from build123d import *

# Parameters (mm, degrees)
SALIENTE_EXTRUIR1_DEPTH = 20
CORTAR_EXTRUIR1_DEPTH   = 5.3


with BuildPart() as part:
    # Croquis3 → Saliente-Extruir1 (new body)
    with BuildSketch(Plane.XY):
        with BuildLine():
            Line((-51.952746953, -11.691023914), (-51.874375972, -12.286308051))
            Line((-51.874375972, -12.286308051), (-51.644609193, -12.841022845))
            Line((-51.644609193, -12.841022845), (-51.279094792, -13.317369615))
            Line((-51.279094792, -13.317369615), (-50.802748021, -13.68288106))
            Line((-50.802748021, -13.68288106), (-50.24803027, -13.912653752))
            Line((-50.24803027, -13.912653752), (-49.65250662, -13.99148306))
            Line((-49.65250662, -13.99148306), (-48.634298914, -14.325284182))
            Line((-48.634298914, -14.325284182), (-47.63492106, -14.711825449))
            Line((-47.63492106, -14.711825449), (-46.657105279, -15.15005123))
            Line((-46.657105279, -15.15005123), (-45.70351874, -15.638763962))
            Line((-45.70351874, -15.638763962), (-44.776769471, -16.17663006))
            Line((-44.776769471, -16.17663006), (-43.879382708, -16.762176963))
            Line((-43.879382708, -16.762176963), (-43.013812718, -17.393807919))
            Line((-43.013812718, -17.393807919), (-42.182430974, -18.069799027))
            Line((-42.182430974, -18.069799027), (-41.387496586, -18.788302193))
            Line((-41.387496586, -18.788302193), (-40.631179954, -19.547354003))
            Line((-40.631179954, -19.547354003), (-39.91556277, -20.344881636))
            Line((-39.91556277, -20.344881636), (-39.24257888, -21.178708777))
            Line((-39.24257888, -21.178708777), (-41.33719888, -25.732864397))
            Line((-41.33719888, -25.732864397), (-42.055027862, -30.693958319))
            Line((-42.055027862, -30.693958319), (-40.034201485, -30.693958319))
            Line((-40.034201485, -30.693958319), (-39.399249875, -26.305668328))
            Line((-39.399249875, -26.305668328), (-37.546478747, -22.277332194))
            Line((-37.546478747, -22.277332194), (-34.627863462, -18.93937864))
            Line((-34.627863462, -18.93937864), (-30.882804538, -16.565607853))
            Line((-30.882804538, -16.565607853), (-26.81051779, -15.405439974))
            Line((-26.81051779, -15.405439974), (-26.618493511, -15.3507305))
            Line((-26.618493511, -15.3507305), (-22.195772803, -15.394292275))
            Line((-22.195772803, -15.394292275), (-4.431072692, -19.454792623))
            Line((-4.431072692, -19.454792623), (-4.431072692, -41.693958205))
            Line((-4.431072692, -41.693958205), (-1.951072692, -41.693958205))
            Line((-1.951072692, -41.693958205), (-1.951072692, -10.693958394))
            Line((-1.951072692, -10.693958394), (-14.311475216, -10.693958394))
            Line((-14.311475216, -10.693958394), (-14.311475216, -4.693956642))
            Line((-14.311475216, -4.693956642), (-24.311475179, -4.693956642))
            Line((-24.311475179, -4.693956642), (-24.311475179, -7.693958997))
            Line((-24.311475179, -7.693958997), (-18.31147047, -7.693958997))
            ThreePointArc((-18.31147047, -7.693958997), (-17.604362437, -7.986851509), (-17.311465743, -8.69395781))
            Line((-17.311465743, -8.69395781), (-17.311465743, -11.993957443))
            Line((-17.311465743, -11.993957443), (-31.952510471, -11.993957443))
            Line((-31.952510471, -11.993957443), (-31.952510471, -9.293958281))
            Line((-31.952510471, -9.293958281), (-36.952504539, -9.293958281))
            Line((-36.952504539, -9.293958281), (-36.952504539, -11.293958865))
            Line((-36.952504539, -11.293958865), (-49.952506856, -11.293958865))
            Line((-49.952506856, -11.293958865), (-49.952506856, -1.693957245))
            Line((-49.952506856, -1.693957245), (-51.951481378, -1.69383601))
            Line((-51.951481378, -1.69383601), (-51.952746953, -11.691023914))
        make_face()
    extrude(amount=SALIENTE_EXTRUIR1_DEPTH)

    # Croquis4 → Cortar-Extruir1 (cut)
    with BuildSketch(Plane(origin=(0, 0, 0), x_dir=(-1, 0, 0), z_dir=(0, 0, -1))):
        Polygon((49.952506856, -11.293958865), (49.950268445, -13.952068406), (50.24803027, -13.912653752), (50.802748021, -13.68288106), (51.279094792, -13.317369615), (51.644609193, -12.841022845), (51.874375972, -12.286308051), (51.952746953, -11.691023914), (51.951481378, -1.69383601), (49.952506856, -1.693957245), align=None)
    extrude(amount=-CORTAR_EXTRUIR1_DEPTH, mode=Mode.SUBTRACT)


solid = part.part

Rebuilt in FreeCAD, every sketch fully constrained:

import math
import FreeCAD as App
import Part
import Sketcher

V = App.Vector


def add_polygon(sketch, points):
    """Adds a closed chain of lines whose ends are joined by coincident constraints."""
    first, n = sketch.GeometryCount, len(points)
    for a, b in zip(points, points[1:] + points[:1]):
        sketch.addGeometry(Part.LineSegment(App.Vector(*a, 0), App.Vector(*b, 0)), False)
    for i in range(n):
        sketch.addConstraint(Sketcher.Constraint("Coincident", first + i, 2, first + (i + 1) % n, 1))

doc = App.newDocument("Part")
body = doc.addObject("PartDesign::Body", "Body")

# Sketch on XY plane
sketch1 = body.newObject("Sketcher::SketchObject", "Sketch")
sketch1.AttachmentSupport = (doc.getObject("XY_Plane"), [""])
sketch1.MapMode = "FlatFace"
sketch1.addGeometry([
    Part.LineSegment(V(-51.952747, -11.691024, 0), V(-51.874376, -12.286308, 0)),  # 0
    Part.LineSegment(V(-51.874376, -12.286308, 0), V(-51.644609, -12.841023, 0)),  # 1
    Part.LineSegment(V(-51.644609, -12.841023, 0), V(-51.279095, -13.31737, 0)),  # 2
    Part.LineSegment(V(-51.279095, -13.31737, 0), V(-50.802748, -13.682881, 0)),  # 3
    Part.LineSegment(V(-50.802748, -13.682881, 0), V(-50.24803, -13.912654, 0)),  # 4
    Part.LineSegment(V(-50.24803, -13.912654, 0), V(-49.652507, -13.991483, 0)),  # 5
    Part.LineSegment(V(-49.652507, -13.991483, 0), V(-48.634299, -14.325284, 0)),  # 6
    Part.LineSegment(V(-48.634299, -14.325284, 0), V(-47.634921, -14.711825, 0)),  # 7
    Part.LineSegment(V(-47.634921, -14.711825, 0), V(-46.657105, -15.150051, 0)),  # 8
    Part.LineSegment(V(-46.657105, -15.150051, 0), V(-45.703519, -15.638764, 0)),  # 9
    Part.LineSegment(V(-45.703519, -15.638764, 0), V(-44.776769, -16.17663, 0)),  # 10
    Part.LineSegment(V(-44.776769, -16.17663, 0), V(-43.879383, -16.762177, 0)),  # 11
    Part.LineSegment(V(-43.879383, -16.762177, 0), V(-43.013813, -17.393808, 0)),  # 12
    Part.LineSegment(V(-43.013813, -17.393808, 0), V(-42.182431, -18.069799, 0)),  # 13
    Part.LineSegment(V(-42.182431, -18.069799, 0), V(-41.387497, -18.788302, 0)),  # 14
    Part.LineSegment(V(-41.387497, -18.788302, 0), V(-40.63118, -19.547354, 0)),  # 15
    Part.LineSegment(V(-40.63118, -19.547354, 0), V(-39.915563, -20.344882, 0)),  # 16
    Part.LineSegment(V(-39.915563, -20.344882, 0), V(-39.242579, -21.178709, 0)),  # 17
    Part.LineSegment(V(-39.242579, -21.178709, 0), V(-41.337199, -25.732864, 0)),  # 18
    Part.LineSegment(V(-41.337199, -25.732864, 0), V(-42.055028, -30.693958, 0)),  # 19
    Part.LineSegment(V(-42.055028, -30.693958, 0), V(-40.034201, -30.693958, 0)),  # 20
    Part.LineSegment(V(-40.034201, -30.693958, 0), V(-39.39925, -26.305668, 0)),  # 21
    Part.LineSegment(V(-39.39925, -26.305668, 0), V(-37.546479, -22.277332, 0)),  # 22
    Part.LineSegment(V(-37.546479, -22.277332, 0), V(-34.627863, -18.939379, 0)),  # 23
    Part.LineSegment(V(-34.627863, -18.939379, 0), V(-30.882805, -16.565608, 0)),  # 24
    Part.LineSegment(V(-30.882805, -16.565608, 0), V(-26.810518, -15.40544, 0)),  # 25
    Part.LineSegment(V(-26.810518, -15.40544, 0), V(-26.618494, -15.35073, 0)),  # 26
    Part.LineSegment(V(-26.618494, -15.35073, 0), V(-22.195773, -15.394292, 0)),  # 27
    Part.LineSegment(V(-22.195773, -15.394292, 0), V(-4.431073, -19.454793, 0)),  # 28
    Part.LineSegment(V(-4.431073, -19.454793, 0), V(-4.431073, -41.693958, 0)),  # 29
    Part.LineSegment(V(-4.431073, -41.693958, 0), V(-1.951073, -41.693958, 0)),  # 30
    Part.LineSegment(V(-1.951073, -41.693958, 0), V(-1.951073, -10.693958, 0)),  # 31
    Part.LineSegment(V(-1.951073, -10.693958, 0), V(-14.311475, -10.693958, 0)),  # 32
    Part.LineSegment(V(-14.311475, -10.693958, 0), V(-14.311475, -4.693957, 0)),  # 33
    Part.LineSegment(V(-14.311475, -4.693957, 0), V(-24.311475, -4.693957, 0)),  # 34
    Part.LineSegment(V(-24.311475, -4.693957, 0), V(-24.311475, -7.693959, 0)),  # 35
    Part.LineSegment(V(-24.311475, -7.693959, 0), V(-18.31147, -7.693959, 0)),  # 36
    Part.ArcOfCircle(Part.Circle(V(-18.31147, -8.693964, 0), V(0, 0, 1), 1.000005), math.radians(0.000339), math.radians(90)),  # 37
    Part.LineSegment(V(-17.311466, -8.693958, 0), V(-17.311466, -11.993957, 0)),  # 38
    Part.LineSegment(V(-17.311466, -11.993957, 0), V(-31.95251, -11.993957, 0)),  # 39
    Part.LineSegment(V(-31.95251, -11.993957, 0), V(-31.95251, -9.293958, 0)),  # 40
    Part.LineSegment(V(-31.95251, -9.293958, 0), V(-36.952505, -9.293958, 0)),  # 41
    Part.LineSegment(V(-36.952505, -9.293958, 0), V(-36.952505, -11.293959, 0)),  # 42
    Part.LineSegment(V(-36.952505, -11.293959, 0), V(-49.952507, -11.293959, 0)),  # 43
    Part.LineSegment(V(-49.952507, -11.293959, 0), V(-49.952507, -1.693957, 0)),  # 44
    Part.LineSegment(V(-49.952507, -1.693957, 0), V(-51.951481, -1.693836, 0)),  # 45
    Part.LineSegment(V(-51.951481, -1.693836, 0), V(-51.952747, -11.691024, 0)),  # 46
], False)
sketch1.addConstraint([
    Sketcher.Constraint("Coincident", 0, 2, 1, 1),
    Sketcher.Constraint("Coincident", 1, 2, 2, 1),
    Sketcher.Constraint("Coincident", 2, 2, 3, 1),
    Sketcher.Constraint("Coincident", 3, 2, 4, 1),
    Sketcher.Constraint("Coincident", 4, 2, 5, 1),
    Sketcher.Constraint("Coincident", 5, 2, 6, 1),
    Sketcher.Constraint("Coincident", 6, 2, 7, 1),
    Sketcher.Constraint("Coincident", 7, 2, 8, 1),
    Sketcher.Constraint("Coincident", 8, 2, 9, 1),
    Sketcher.Constraint("Coincident", 9, 2, 10, 1),
    Sketcher.Constraint("Coincident", 10, 2, 11, 1),
    Sketcher.Constraint("Coincident", 11, 2, 12, 1),
    Sketcher.Constraint("Coincident", 12, 2, 13, 1),
    Sketcher.Constraint("Coincident", 13, 2, 14, 1),
    Sketcher.Constraint("Coincident", 14, 2, 15, 1),
    Sketcher.Constraint("Coincident", 15, 2, 16, 1),
    Sketcher.Constraint("Coincident", 16, 2, 17, 1),
    Sketcher.Constraint("Coincident", 17, 2, 18, 1),
    Sketcher.Constraint("Coincident", 18, 2, 19, 1),
    Sketcher.Constraint("Coincident", 19, 2, 20, 1),
    Sketcher.Constraint("Coincident", 20, 2, 21, 1),
    Sketcher.Constraint("Coincident", 21, 2, 22, 1),
    Sketcher.Constraint("Coincident", 22, 2, 23, 1),
    Sketcher.Constraint("Coincident", 23, 2, 24, 1),
    Sketcher.Constraint("Coincident", 24, 2, 25, 1),
    Sketcher.Constraint("Coincident", 25, 2, 26, 1),
    Sketcher.Constraint("Coincident", 26, 2, 27, 1),
    Sketcher.Constraint("Coincident", 27, 2, 28, 1),
    Sketcher.Constraint("Coincident", 28, 2, 29, 1),
    Sketcher.Constraint("Coincident", 29, 2, 30, 1),
    Sketcher.Constraint("Coincident", 30, 2, 31, 1),
    Sketcher.Constraint("Coincident", 31, 2, 32, 1),
    Sketcher.Constraint("Coincident", 32, 2, 33, 1),
    Sketcher.Constraint("Coincident", 33, 2, 34, 1),
    Sketcher.Constraint("Coincident", 34, 2, 35, 1),
    Sketcher.Constraint("Coincident", 35, 2, 36, 1),
    Sketcher.Constraint("Coincident", 36, 2, 37, 2),
    Sketcher.Constraint("Coincident", 37, 1, 38, 1),
    Sketcher.Constraint("Coincident", 38, 2, 39, 1),
    Sketcher.Constraint("Coincident", 39, 2, 40, 1),
    Sketcher.Constraint("Coincident", 40, 2, 41, 1),
    Sketcher.Constraint("Coincident", 41, 2, 42, 1),
    Sketcher.Constraint("Coincident", 42, 2, 43, 1),
    Sketcher.Constraint("Coincident", 43, 2, 44, 1),
    Sketcher.Constraint("Coincident", 44, 2, 45, 1),
    Sketcher.Constraint("Coincident", 45, 2, 46, 1),
    Sketcher.Constraint("Coincident", 46, 2, 0, 1),
    Sketcher.Constraint("Horizontal", 20),
    Sketcher.Constraint("Vertical", 29),
    Sketcher.Constraint("Horizontal", 30),
    Sketcher.Constraint("Vertical", 31),
    Sketcher.Constraint("Horizontal", 32),
    Sketcher.Constraint("Vertical", 33),
    Sketcher.Constraint("Horizontal", 34),
    Sketcher.Constraint("Vertical", 35),
    Sketcher.Constraint("Horizontal", 36),
    Sketcher.Constraint("Vertical", 38),
    Sketcher.Constraint("Horizontal", 39),
    Sketcher.Constraint("Vertical", 40),
    Sketcher.Constraint("Horizontal", 41),
    Sketcher.Constraint("Vertical", 42),
    Sketcher.Constraint("Horizontal", 43),
    Sketcher.Constraint("Vertical", 44),
    Sketcher.Constraint("DistanceX", 34, 2, 34, 1, 10.0),
    Sketcher.Constraint("DistanceY", 31, 1, 31, 2, 31.0),
    Sketcher.Constraint("DistanceY", 33, 1, 33, 2, 6.000002),
    Sketcher.Constraint("DistanceY", 42, 2, 42, 1, 2.000001),
    Sketcher.Constraint("DistanceY", 38, 2, 38, 1, 3.3),
    Sketcher.Constraint("DistanceY", 40, 1, 40, 2, 2.699999),
    Sketcher.Constraint("DistanceY", 44, 1, 44, 2, 9.600002),
    Sketcher.Constraint("DistanceY", 32, 2, 36, 2, 2.999999),
    Sketcher.Constraint("DistanceY", 37, 1, 36, 2, 0.999999),
    Sketcher.Constraint("DistanceX", 30, 1, 30, 2, 2.48),
    Sketcher.Constraint("DistanceY", 1, 2, 46, 2, 1.149999),
    Sketcher.Constraint("DistanceX", 46, 2, 3, 2, 1.149999),
    Sketcher.Constraint("Radius", 37, 1.000005),
    Sketcher.Constraint("DistanceX", 6, 2, -1, 1, 48.634299),
    Sketcher.Constraint("DistanceY", 13, 2, -1, 1, 18.069799),
    Sketcher.Constraint("DistanceX", 18, 2, -1, 1, 41.337199),
    Sketcher.Constraint("DistanceX", 20, 2, -1, 1, 40.034201),
    Sketcher.Constraint("DistanceY", 6, 2, 5, 2, 0.333801),
    Sketcher.Constraint("DistanceX", 5, 2, 8, 2, 2.995401),
    Sketcher.Constraint("DistanceX", 15, 2, 17, 2, 1.388601),
    Sketcher.Constraint("DistanceY", 17, 2, 12, 2, 3.784901),
    Sketcher.Constraint("DistanceX", 17, 2, 22, 2, 1.6961),
    Sketcher.Constraint("DistanceX", 16, 2, 23, 2, 5.287699),
    Sketcher.Constraint("DistanceY", 17, 2, 24, 2, 4.613101),
    Sketcher.Constraint("DistanceY", 22, 2, 26, 2, 6.926602),
    Sketcher.Constraint("DistanceX", 27, 2, 28, 2, 17.7647),
    Sketcher.Constraint("DistanceY", 28, 2, 27, 2, 4.0605),
    Sketcher.Constraint("DistanceX", 41, 2, 24, 2, 6.0697),
    Sketcher.Constraint("Distance", 0, 0.600421),
    Sketcher.Constraint("Distance", 3, 0.600421),
    Sketcher.Constraint("Distance", 5, 0.600718),
    Sketcher.Constraint("Distance", 15, 1.071529),
    Sketcher.Constraint("Distance", 16, 1.071521),
    Sketcher.Constraint("Distance", 17, 1.071529),
    Sketcher.Constraint("Distance", 18, 5.01276),
    Sketcher.Constraint("Distance", 21, 4.433988),
    Sketcher.Constraint("Distance", 22, 4.433988),
    Sketcher.Constraint("Distance", 24, 4.433989),
    Sketcher.Constraint("DistanceX", 20, 1, 20, 2, 2.020826),
    Sketcher.Constraint("DistanceX", 32, 2, 32, 1, 12.360403),
    Sketcher.Constraint("DistanceX", 36, 1, 36, 2, 6.000005),
    Sketcher.Constraint("DistanceX", 39, 2, 39, 1, 14.641045),
    Sketcher.Constraint("DistanceX", 41, 2, 41, 1, 4.999994),
    Sketcher.Constraint("DistanceX", 43, 2, 43, 1, 13.000002),
    Sketcher.Constraint("DistanceY", 29, 2, 29, 1, 22.239166),
    Sketcher.Constraint("DistanceX", 37, 3, -1, 1, 18.31147),
    Sketcher.Constraint("DistanceY", 0, 2, -1, 1, 12.286308),
    Sketcher.Constraint("DistanceX", 1, 2, -1, 1, 51.644609),
    Sketcher.Constraint("DistanceY", 2, 2, -1, 1, 13.31737),
    Sketcher.Constraint("DistanceX", 3, 2, -1, 1, 50.802748),
    Sketcher.Constraint("DistanceY", 3, 2, -1, 1, 13.682881),
    Sketcher.Constraint("DistanceX", 4, 2, -1, 1, 50.24803),
    Sketcher.Constraint("DistanceX", 7, 2, -1, 1, 47.634921),
    Sketcher.Constraint("DistanceY", 8, 2, -1, 1, 15.150051),
    Sketcher.Constraint("DistanceX", 9, 2, -1, 1, 45.703519),
    Sketcher.Constraint("DistanceX", 10, 2, -1, 1, 44.776769),
    Sketcher.Constraint("DistanceY", 10, 2, -1, 1, 16.17663),
    Sketcher.Constraint("DistanceX", 13, 2, -1, 1, 42.182431),
    Sketcher.Constraint("DistanceX", 15, 2, -1, 1, 40.63118),
    Sketcher.Constraint("DistanceY", 16, 2, -1, 1, 20.344882),
    Sketcher.Constraint("DistanceY", 17, 2, -1, 1, 21.178709),
    Sketcher.Constraint("DistanceY", 19, 2, -1, 1, 30.693958),
    Sketcher.Constraint("DistanceX", 21, 2, -1, 1, 39.39925),
    Sketcher.Constraint("DistanceY", 25, 2, -1, 1, 15.40544),
    Sketcher.Constraint("DistanceY", 29, 2, -1, 1, 41.693958),
    Sketcher.Constraint("DistanceX", 36, 2, -1, 1, 18.31147),
    Sketcher.Constraint("DistanceX", 45, 2, -1, 1, 51.951481),
    Sketcher.Constraint("DistanceY", 1, 2, 37, 3, 4.147059),
    Sketcher.Constraint("DistanceY", 4, 2, 1, 2, 1.071631),
    Sketcher.Constraint("DistanceY", 5, 2, 4, 2, 0.078829),
    Sketcher.Constraint("DistanceY", 7, 2, 6, 2, 0.386541),
    Sketcher.Constraint("DistanceY", 9, 2, 7, 2, 0.926939),
    Sketcher.Constraint("DistanceX", 7, 2, 11, 2, 3.755538),
    Sketcher.Constraint("DistanceY", 11, 2, 7, 2, 2.050352),
    Sketcher.Constraint("DistanceX", 11, 2, 12, 2, 0.86557),
    Sketcher.Constraint("DistanceY", 14, 2, 9, 2, 3.149538),
    Sketcher.Constraint("DistanceX", 22, 2, 25, 2, 10.735961),
    Sketcher.Constraint("DistanceX", 24, 2, 26, 2, 4.264311),
    Sketcher.Constraint("DistanceY", 44, 2, 45, 2, 0.000121),
])
pad1 = body.newObject("PartDesign::Pad", "Pad")
pad1.Profile = sketch1
pad1.Length = 20

# Sketch on XY plane
sketch2 = body.newObject("Sketcher::SketchObject", "Sketch001")
sketch2.AttachmentSupport = (doc.getObject("XY_Plane"), [""])
sketch2.MapMode = "FlatFace"
add_polygon(sketch2, [(-49.95, -11.29), (-49.95, -13.95), (-50.25, -13.91), (-50.8, -13.68), (-51.28, -13.32), (-51.64, -12.84), (-51.87, -12.29), (-51.95, -11.69), (-51.95, -1.69), (-49.95, -1.69)])  # lines 0-9
sketch2.addConstraint([
    Sketcher.Constraint("Vertical", 9),
    Sketcher.Constraint("Equal", 3, 4),
    Sketcher.Constraint("Equal", 4, 6),
    Sketcher.Constraint("DistanceY", 9, 2, 9, 1, 9.600002),
    Sketcher.Constraint("DistanceY", 4, 2, 6, 2, 1.149999),
    Sketcher.Constraint("DistanceX", 6, 2, 2, 2, 1.149999),
    Sketcher.Constraint("DistanceY", 0, 2, 3, 2, 0.634699),
    Sketcher.Constraint("Distance", 0, 2.65811),
    Sketcher.Constraint("Distance", 1, 0.300359),
    Sketcher.Constraint("Distance", 3, 0.600421),
    Sketcher.Constraint("DistanceX", 0, 2, -1, 1, 49.950268),
    Sketcher.Constraint("DistanceY", 0, 2, -1, 1, 13.952068),
    Sketcher.Constraint("DistanceX", 1, 2, -1, 1, 50.24803),
    Sketcher.Constraint("DistanceX", 2, 2, -1, 1, 50.802748),
    Sketcher.Constraint("DistanceY", 2, 2, -1, 1, 13.682881),
    Sketcher.Constraint("DistanceX", 4, 2, -1, 1, 51.644609),
    Sketcher.Constraint("DistanceY", 5, 2, -1, 1, 12.286308),
    Sketcher.Constraint("DistanceX", 7, 2, -1, 1, 51.951481),
    Sketcher.Constraint("DistanceY", 8, 2, 7, 2, 0.000121),
    Sketcher.Constraint("DistanceX", 6, 2, 8, 2, 2.00024),
])
pocket1 = body.newObject("PartDesign::Pocket", "Pocket")
pocket1.Profile = sketch2
pocket1.Length = 5.3
pocket1.Reversed = True

doc.recompute()
